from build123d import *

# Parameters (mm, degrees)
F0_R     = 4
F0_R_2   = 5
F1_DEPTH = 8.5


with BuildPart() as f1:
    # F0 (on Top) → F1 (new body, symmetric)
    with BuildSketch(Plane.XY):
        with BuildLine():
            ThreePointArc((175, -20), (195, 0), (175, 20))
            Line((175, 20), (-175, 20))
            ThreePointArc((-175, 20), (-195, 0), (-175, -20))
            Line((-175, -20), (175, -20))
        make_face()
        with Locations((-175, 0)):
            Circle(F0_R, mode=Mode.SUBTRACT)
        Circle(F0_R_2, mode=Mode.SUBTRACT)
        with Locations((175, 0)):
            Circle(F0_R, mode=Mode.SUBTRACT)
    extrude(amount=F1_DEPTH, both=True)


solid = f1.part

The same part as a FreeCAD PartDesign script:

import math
import FreeCAD as App
import Part
import Sketcher

doc = App.newDocument("Part")
params = doc.addObject("Spreadsheet::Sheet", "Params")
for row, (alias, value) in enumerate([
    ("sketch1_diameter", "8 mm"),
    ("sketch1_diameter2", "10 mm"),
    ("sketch1_radius", "20 mm"),
    ("sketch1_width", "350 mm"),
    ("pad1_length", "17 mm"),
], start=1):
    params.set(f"A{row}", alias)
    params.set(f"B{row}", "=" + value)
    params.setAlias(f"B{row}", alias)

body = doc.addObject("PartDesign::Body", "Body")

# Sketch on XY plane
sketch1 = doc.addObject("Sketcher::SketchObject", "Sketch")
body.addObject(sketch1)
sketch1.AttachmentSupport = (doc.XY_Plane, [""])
sketch1.MapMode = "FlatFace"
sketch1.addGeometry(Part.ArcOfCircle(Part.Circle(App.Vector(175, 0, 0), App.Vector(0, 0, 1), 20), math.radians(-90), math.radians(90)), False)
sketch1.addGeometry(Part.LineSegment(App.Vector(175, 20, 0), App.Vector(-175, 20, 0)), False)
sketch1.addGeometry(Part.ArcOfCircle(Part.Circle(App.Vector(-175, 0, 0), App.Vector(0, 0, 1), 20), math.radians(90), math.radians(270)), False)
sketch1.addGeometry(Part.LineSegment(App.Vector(-175, -20, 0), App.Vector(175, -20, 0)), False)
sketch1.addGeometry(Part.Circle(App.Vector(-175, 0, 0), App.Vector(0, 0, 1), 4), False)
sketch1.addGeometry(Part.Circle(App.Vector(0, 0, 0), App.Vector(0, 0, 1), 5), False)
sketch1.addGeometry(Part.Circle(App.Vector(175, 0, 0), App.Vector(0, 0, 1), 4), False)
sketch1.addConstraint(Sketcher.Constraint("Tangent", 0, 2, 1, 1))
sketch1.addConstraint(Sketcher.Constraint("Tangent", 1, 2, 2, 1))
sketch1.addConstraint(Sketcher.Constraint("Tangent", 2, 2, 3, 1))
sketch1.addConstraint(Sketcher.Constraint("Tangent", 3, 2, 0, 1))
sketch1.addConstraint(Sketcher.Constraint("Horizontal", 1))
sketch1.addConstraint(Sketcher.Constraint("Horizontal", 3))
sketch1.addConstraint(Sketcher.Constraint("Coincident", 5, 3, -1, 1))
sketch1.addConstraint(Sketcher.Constraint("Coincident", 4, 3, 2, 3))
sketch1.addConstraint(Sketcher.Constraint("Coincident", 6, 3, 0, 3))
sketch1.addConstraint(Sketcher.Constraint("Equal", 4, 6))
sketch1.addConstraint(Sketcher.Constraint("Symmetric", 0, 3, 2, 3, -1, 1))
sketch1.addConstraint(Sketcher.Constraint("Diameter", 4, 8.0))
sketch1.addConstraint(Sketcher.Constraint("Diameter", 5, 10.0))
sketch1.addConstraint(Sketcher.Constraint("Radius", 0, 20.0))
sketch1.addConstraint(Sketcher.Constraint("DistanceX", 1, 2, 1, 1, 350.0))
sketch1.setExpression("Constraints[11]", "Params.sketch1_diameter")
sketch1.setExpression("Constraints[12]", "Params.sketch1_diameter2")
sketch1.setExpression("Constraints[13]", "Params.sketch1_radius")
sketch1.setExpression("Constraints[14]", "Params.sketch1_width")
pad1 = doc.addObject("PartDesign::Pad", "Pad")
body.addObject(pad1)
pad1.Profile = sketch1
pad1.setExpression("Length", "Params.pad1_length")
pad1.Midplane = True

doc.recompute()
